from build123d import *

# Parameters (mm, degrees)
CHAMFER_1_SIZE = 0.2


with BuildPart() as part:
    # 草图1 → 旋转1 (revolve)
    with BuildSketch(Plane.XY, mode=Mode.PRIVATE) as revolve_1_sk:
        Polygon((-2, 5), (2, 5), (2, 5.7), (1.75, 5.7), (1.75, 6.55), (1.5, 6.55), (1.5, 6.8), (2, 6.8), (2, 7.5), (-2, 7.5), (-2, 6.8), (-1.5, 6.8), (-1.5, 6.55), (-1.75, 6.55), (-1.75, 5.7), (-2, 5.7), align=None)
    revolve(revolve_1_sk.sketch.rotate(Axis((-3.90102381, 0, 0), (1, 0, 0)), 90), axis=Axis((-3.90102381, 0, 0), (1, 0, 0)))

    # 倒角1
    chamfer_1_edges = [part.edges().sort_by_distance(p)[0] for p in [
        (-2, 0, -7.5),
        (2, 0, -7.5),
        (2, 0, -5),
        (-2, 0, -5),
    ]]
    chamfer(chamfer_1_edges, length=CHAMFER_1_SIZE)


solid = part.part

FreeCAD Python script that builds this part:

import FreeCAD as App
import Part
import Sketcher
from FreeCAD import Vector


def edges_at(feature, points):
    """Names of the edges that pass closest to the given points."""
    edges = feature.Shape.Edges
    near = lambda p: min(range(len(edges)), key=lambda i: edges[i].distToShape(Part.Vertex(*p))[0])
    return sorted({f"Edge{near(p) + 1}" for p in points})


def add_polygon(sketch, points):
    """Adds a closed chain of lines whose ends are joined by coincident constraints."""
    first, n = sketch.GeometryCount, len(points)
    for a, b in zip(points, points[1:] + points[:1]):
        sketch.addGeometry(Part.LineSegment(App.Vector(*a, 0), App.Vector(*b, 0)), False)
    for i in range(n):
        sketch.addConstraint(Sketcher.Constraint("Coincident", first + i, 2, first + (i + 1) % n, 1))

doc = App.newDocument("Part")
body = doc.addObject("PartDesign::Body", "Body")

# Sketch on XY plane
sketch1 = doc.addObject("Sketcher::SketchObject", "Sketch")
body.addObject(sketch1)
sketch1.AttachmentSupport = (doc.XY_Plane, [""])
sketch1.MapMode = "FlatFace"
add_polygon(sketch1, [(-2, 5), (2, 5), (2, 5.7), (1.75, 5.7), (1.75, 6.55), (1.5, 6.55), (1.5, 6.8), (2, 6.8), (2, 7.5), (-2, 7.5), (-2, 6.8), (-1.5, 6.8), (-1.5, 6.55), (-1.75, 6.55), (-1.75, 5.7), (-2, 5.7)])  # lines 0-15
sketch1.addConstraint([
    Sketcher.Constraint("Horizontal", 0),
    Sketcher.Constraint("Vertical", 1),
    Sketcher.Constraint("Horizontal", 2),
    Sketcher.Constraint("Vertical", 3),
    Sketcher.Constraint("Horizontal", 4),
    Sketcher.Constraint("Vertical", 5),
    Sketcher.Constraint("Horizontal", 6),
    Sketcher.Constraint("Vertical", 7),
    Sketcher.Constraint("Horizontal", 8),
    Sketcher.Constraint("Vertical", 9),
    Sketcher.Constraint("Horizontal", 10),
    Sketcher.Constraint("Vertical", 11),
    Sketcher.Constraint("Horizontal", 12),
    Sketcher.Constraint("Vertical", 13),
    Sketcher.Constraint("Horizontal", 14),
    Sketcher.Constraint("Vertical", 15),
    Sketcher.Constraint("Symmetric", 6, 2, 9, 2, -2),
    Sketcher.Constraint("Symmetric", 4, 2, 11, 2, -2),
    Sketcher.Constraint("Symmetric", 2, 2, 13, 2, -2),
    Sketcher.Constraint("Vertical", 1, 2, 6, 2),
    Sketcher.Constraint("Vertical", 9, 2, 14, 2),
    Sketcher.Constraint("Equal", 2, 4),
    Sketcher.Constraint("Equal", 14, 5),
    Sketcher.Constraint("Equal", 1, 7),
    Sketcher.Constraint("DistanceX", 0, 1, 0, 2, 4.0),
    Sketcher.Constraint("DistanceX", 6, 1, 6, 2, 0.5),
    Sketcher.Constraint("DistanceY", 1, 1, 1, 2, 0.7),
    Sketcher.Constraint("DistanceY", -1, 1, 0, 2, 5.0),
    Sketcher.Constraint("DistanceY", 3, 1, 3, 2, 0.85),
])
revolution = doc.addObject("PartDesign::Revolution", "Revolution")
body.addObject(revolution)
revolution.Profile = sketch1
revolution.ReferenceAxis = (sketch1, ["H_Axis"])
revolution.Angle = 360
doc.recompute()

chamfer = doc.addObject("PartDesign::Chamfer", "Chamfer")
body.addObject(chamfer)
chamfer.Base = (revolution, edges_at(revolution, [
    (-2, 0, -7.5),
    (2, 0, -7.5),
    (2, 0, -5),
    (-2, 0, -5),
]))
chamfer.Size = 0.2

doc.recompute()
